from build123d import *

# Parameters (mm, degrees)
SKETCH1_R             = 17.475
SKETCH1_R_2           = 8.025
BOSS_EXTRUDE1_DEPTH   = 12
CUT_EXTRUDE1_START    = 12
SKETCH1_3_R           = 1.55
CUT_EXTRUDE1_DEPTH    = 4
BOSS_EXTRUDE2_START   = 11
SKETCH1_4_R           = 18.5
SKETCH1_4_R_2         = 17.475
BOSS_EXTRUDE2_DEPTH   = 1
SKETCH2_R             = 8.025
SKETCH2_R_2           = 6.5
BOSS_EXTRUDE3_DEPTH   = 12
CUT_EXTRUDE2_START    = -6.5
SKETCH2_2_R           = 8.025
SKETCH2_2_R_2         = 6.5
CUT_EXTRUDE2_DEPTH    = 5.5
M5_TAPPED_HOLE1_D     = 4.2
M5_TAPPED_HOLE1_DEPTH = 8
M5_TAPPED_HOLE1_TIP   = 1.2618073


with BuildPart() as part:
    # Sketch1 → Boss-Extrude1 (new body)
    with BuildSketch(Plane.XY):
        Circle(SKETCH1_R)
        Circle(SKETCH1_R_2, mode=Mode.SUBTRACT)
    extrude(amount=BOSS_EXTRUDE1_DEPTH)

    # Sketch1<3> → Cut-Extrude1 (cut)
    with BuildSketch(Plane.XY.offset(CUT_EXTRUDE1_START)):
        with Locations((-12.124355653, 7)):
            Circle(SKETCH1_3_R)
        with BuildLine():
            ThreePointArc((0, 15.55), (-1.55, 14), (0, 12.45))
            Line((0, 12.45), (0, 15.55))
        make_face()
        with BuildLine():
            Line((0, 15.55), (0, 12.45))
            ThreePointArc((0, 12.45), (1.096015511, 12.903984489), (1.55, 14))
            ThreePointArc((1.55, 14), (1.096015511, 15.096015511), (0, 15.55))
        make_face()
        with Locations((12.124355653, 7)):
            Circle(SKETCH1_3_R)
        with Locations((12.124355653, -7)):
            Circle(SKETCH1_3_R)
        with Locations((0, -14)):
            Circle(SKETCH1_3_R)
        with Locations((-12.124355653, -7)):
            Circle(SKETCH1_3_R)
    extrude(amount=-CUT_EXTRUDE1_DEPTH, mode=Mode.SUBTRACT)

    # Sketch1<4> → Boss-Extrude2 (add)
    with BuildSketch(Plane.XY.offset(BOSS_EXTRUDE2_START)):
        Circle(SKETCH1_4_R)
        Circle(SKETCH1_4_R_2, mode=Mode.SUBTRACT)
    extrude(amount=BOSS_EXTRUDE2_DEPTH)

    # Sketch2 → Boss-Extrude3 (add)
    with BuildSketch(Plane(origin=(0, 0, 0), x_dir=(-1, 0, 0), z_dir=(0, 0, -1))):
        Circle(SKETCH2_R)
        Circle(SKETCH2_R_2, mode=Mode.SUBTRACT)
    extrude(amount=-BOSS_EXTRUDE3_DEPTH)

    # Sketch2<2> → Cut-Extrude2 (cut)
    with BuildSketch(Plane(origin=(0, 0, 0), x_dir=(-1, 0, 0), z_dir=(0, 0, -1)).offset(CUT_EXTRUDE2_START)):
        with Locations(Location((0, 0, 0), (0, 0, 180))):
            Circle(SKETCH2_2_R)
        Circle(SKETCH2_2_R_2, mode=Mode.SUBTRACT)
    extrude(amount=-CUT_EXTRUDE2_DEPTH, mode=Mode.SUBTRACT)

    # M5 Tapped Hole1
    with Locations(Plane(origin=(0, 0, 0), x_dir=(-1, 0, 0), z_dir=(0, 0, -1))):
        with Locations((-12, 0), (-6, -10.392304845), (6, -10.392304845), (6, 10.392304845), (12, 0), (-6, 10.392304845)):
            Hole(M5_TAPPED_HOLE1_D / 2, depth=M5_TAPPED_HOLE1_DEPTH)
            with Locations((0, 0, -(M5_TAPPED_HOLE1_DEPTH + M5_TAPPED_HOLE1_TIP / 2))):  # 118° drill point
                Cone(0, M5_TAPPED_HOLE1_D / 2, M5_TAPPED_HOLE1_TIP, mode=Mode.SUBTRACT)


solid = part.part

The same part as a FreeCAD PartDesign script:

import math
import FreeCAD as App
import Part
import Sketcher

V = App.Vector
Q = App.Units.Quantity

doc = App.newDocument("Part")
body = doc.addObject("PartDesign::Body", "Body")

sketch1 = body.newObject("Sketcher::SketchObject", "Sketch")
sketch1.AttachmentSupport = (doc.getObject("XY_Plane"), [""])
sketch1.MapMode = "FlatFace"
sketch1.addGeometry([
    Part.Circle(V(0, 0, 0), V(0, 0, 1), 17),
    Part.Circle(V(0, 0, 0), V(0, 0, 1), 8),
], False)
sketch1.addConstraint([
    Sketcher.Constraint("Coincident", 0, 3, -1, 1),
    Sketcher.Constraint("Coincident", 1, 3, -1, 1),
    Sketcher.Constraint("Diameter", 0, Q("34.95 mm")),
    Sketcher.Constraint("Diameter", 1, Q("16.05 mm")),
])
pad1 = body.newObject("PartDesign::Pad", "Pad")
pad1.Profile = sketch1
pad1.Length = 12

sketch2 = body.newObject("Sketcher::SketchObject", "Sketch001")
sketch2.AttachmentSupport = (doc.getObject("XY_Plane"), [""])
sketch2.MapMode = "FlatFace"
sketch2.AttachmentOffset = App.Placement(V(0, 0, 12), App.Rotation())
sketch2.addGeometry([
    Part.Circle(V(-12.1, 7, 0), V(0, 0, 1), 1.6),
    Part.ArcOfCircle(Part.Circle(V(0, 14, 0), V(0, 0, 1), 1.6), math.radians(90), math.radians(270)),
    Part.ArcOfCircle(Part.Circle(V(0, 14, 0), V(0, 0, 1), 1.5), math.radians(-90), math.radians(0)),
    Part.ArcOfCircle(Part.Circle(V(0, 14, 0), V(0, 0, 1), 1.5), math.radians(0), math.radians(90)),
    Part.Circle(V(12.1, 7, 0), V(0, 0, 1), 1.6),
    Part.Circle(V(12.1, -7, 0), V(0, 0, 1), 1.6),
    Part.Circle(V(0, -14, 0), V(0, 0, 1), 1.6),
    Part.Circle(V(-12.1, -7, 0), V(0, 0, 1), 1.6),
], False)
sketch2.addConstraint([
    Sketcher.Constraint("Tangent", 1, 2, 2, 1),
    Sketcher.Constraint("Tangent", 2, 2, 3, 1),
    Sketcher.Constraint("Tangent", 3, 2, 1, 1),
    Sketcher.Constraint("Equal", 0, 1),
    Sketcher.Constraint("Equal", 3, 4),
    Sketcher.Constraint("Equal", 4, 5),
    Sketcher.Constraint("Equal", 5, 6),
    Sketcher.Constraint("Equal", 6, 7),
    Sketcher.Constraint("Symmetric", 0, 3, 5, 3, -1, 1),
    Sketcher.Constraint("Symmetric", 1, 3, 6, 3, -1, 1),
    Sketcher.Constraint("Symmetric", 4, 3, 7, 3, -1, 1),
    Sketcher.Constraint("Symmetric", 0, 3, 4, 3, -2),
    Sketcher.Constraint("PointOnObject", 1, 3, -2),
    Sketcher.Constraint("PointOnObject", 1, 2, -2),
    Sketcher.Constraint("PointOnObject", 3, 2, -2),
    Sketcher.Constraint("Horizontal", 3, 3, 2, 2),
    Sketcher.Constraint("Diameter", 0, Q("3.1 mm")),
    Sketcher.Constraint("DistanceY", -1, 1, 0, 3, Q("7 mm")),
    Sketcher.Constraint("DistanceY", -1, 1, 1, 3, Q("14 mm")),
    Sketcher.Constraint("DistanceX", 0, 3, 4, 3, Q("24.248711 mm")),
])
pocket1 = body.newObject("PartDesign::Pocket", "Pocket")
pocket1.Profile = sketch2
pocket1.Length = 4

sketch3 = body.newObject("Sketcher::SketchObject", "Sketch002")
sketch3.AttachmentSupport = (doc.getObject("XY_Plane"), [""])
sketch3.MapMode = "FlatFace"
sketch3.AttachmentOffset = App.Placement(V(0, 0, 11), App.Rotation())
sketch3.addGeometry([
    Part.Circle(V(0, 0, 0), V(0, 0, 1), 18),
    Part.Circle(V(0, 0, 0), V(0, 0, 1), 17),
], False)
sketch3.addConstraint([
    Sketcher.Constraint("Coincident", 0, 3, -1, 1),
    Sketcher.Constraint("Coincident", 1, 3, -1, 1),
    Sketcher.Constraint("Diameter", 0, Q("37 mm")),
    Sketcher.Constraint("Diameter", 1, Q("34.95 mm")),
])
pad2 = body.newObject("PartDesign::Pad", "Pad001")
pad2.Profile = sketch3
pad2.Length = 1

sketch4 = body.newObject("Sketcher::SketchObject", "Sketch003")
sketch4.AttachmentSupport = (doc.getObject("XY_Plane"), [""])
sketch4.MapMode = "FlatFace"
sketch4.addGeometry([
    Part.Circle(V(0, 0, 0), V(0, 0, 1), 8),
    Part.Circle(V(0, 0, 0), V(0, 0, 1), 6),
], False)
sketch4.addConstraint([
    Sketcher.Constraint("Coincident", 0, 3, -1, 1),
    Sketcher.Constraint("Coincident", 1, 3, -1, 1),
    Sketcher.Constraint("Diameter", 1, Q("13 mm")),
    Sketcher.Constraint("Diameter", 0, Q("16.05 mm")),
])
pad3 = body.newObject("PartDesign::Pad", "Pad002")
pad3.Profile = sketch4
pad3.Length = 12

sketch5 = body.newObject("Sketcher::SketchObject", "Sketch004")
sketch5.AttachmentSupport = (doc.getObject("XY_Plane"), [""])
sketch5.MapMode = "FlatFace"
sketch5.AttachmentOffset = App.Placement(V(0, 0, 6.5), App.Rotation())
sketch5.addGeometry([
    Part.Circle(V(0, 0, 0), V(0, 0, 1), 8),
    Part.Circle(V(0, 0, 0), V(0, 0, 1), 6),
], False)
sketch5.addConstraint([
    Sketcher.Constraint("Coincident", 0, 3, -1, 1),
    Sketcher.Constraint("Coincident", 1, 3, -1, 1),
    Sketcher.Constraint("Diameter", 1, Q("13 mm")),
    Sketcher.Constraint("Diameter", 0, Q("16.05 mm")),
])
pocket2 = body.newObject("PartDesign::Pocket", "Pocket001")
pocket2.Profile = sketch5
pocket2.Length = 5.5
pocket2.Reversed = True

sketch6 = body.newObject("Sketcher::SketchObject", "Sketch005")
sketch6.AttachmentSupport = (doc.getObject("XY_Plane"), [""])
sketch6.MapMode = "FlatFace"
sketch6.addGeometry([
    Part.Circle(V(12, 0, 0), V(0, 0, 1), 2.1),
    Part.Circle(V(6, -10.4, 0), V(0, 0, 1), 2.1),
    Part.Circle(V(-6, -10.4, 0), V(0, 0, 1), 2.1),
    Part.Circle(V(-6, 10.4, 0), V(0, 0, 1), 2.1),
    Part.Circle(V(-12, 0, 0), V(0, 0, 1), 2.1),
    Part.Circle(V(6, 10.4, 0), V(0, 0, 1), 2.1),
], False)
sketch6.addConstraint([
    Sketcher.Constraint("Equal", 0, 1),
    Sketcher.Constraint("Equal", 1, 2),
    Sketcher.Constraint("Equal", 2, 3),
    Sketcher.Constraint("Equal", 3, 4),
    Sketcher.Constraint("Equal", 4, 5),
    Sketcher.Constraint("Symmetric", 1, 3, 3, 3, -1, 1),
    Sketcher.Constraint("Symmetric", 0, 3, 4, 3, -1, 1),
    Sketcher.Constraint("Symmetric", 2, 3, 5, 3, -1, 1),
    Sketcher.Constraint("Symmetric", 1, 3, 2, 3, -2),
    Sketcher.Constraint("PointOnObject", 0, 3, -1),
    Sketcher.Constraint("Diameter", 0, Q("4.2 mm")),
    Sketcher.Constraint("DistanceX", -1, 1, 0, 3, Q("12 mm")),
    Sketcher.Constraint("DistanceX", -1, 1, 1, 3, Q("6 mm")),
    Sketcher.Constraint("DistanceY", 2, 3, 3, 3, Q("20.78461 mm")),
])
doc.recompute()
hole = body.newObject("PartDesign::Hole", "Hole")
hole.Profile = sketch6
hole.ThreadType = "None"
hole.Diameter = 4.2
hole.DepthType = "Dimension"
hole.Depth = 8
hole.DrillPoint = "Angled"
hole.DrillPointAngle = 118
hole.Reversed = True

doc.recompute()
